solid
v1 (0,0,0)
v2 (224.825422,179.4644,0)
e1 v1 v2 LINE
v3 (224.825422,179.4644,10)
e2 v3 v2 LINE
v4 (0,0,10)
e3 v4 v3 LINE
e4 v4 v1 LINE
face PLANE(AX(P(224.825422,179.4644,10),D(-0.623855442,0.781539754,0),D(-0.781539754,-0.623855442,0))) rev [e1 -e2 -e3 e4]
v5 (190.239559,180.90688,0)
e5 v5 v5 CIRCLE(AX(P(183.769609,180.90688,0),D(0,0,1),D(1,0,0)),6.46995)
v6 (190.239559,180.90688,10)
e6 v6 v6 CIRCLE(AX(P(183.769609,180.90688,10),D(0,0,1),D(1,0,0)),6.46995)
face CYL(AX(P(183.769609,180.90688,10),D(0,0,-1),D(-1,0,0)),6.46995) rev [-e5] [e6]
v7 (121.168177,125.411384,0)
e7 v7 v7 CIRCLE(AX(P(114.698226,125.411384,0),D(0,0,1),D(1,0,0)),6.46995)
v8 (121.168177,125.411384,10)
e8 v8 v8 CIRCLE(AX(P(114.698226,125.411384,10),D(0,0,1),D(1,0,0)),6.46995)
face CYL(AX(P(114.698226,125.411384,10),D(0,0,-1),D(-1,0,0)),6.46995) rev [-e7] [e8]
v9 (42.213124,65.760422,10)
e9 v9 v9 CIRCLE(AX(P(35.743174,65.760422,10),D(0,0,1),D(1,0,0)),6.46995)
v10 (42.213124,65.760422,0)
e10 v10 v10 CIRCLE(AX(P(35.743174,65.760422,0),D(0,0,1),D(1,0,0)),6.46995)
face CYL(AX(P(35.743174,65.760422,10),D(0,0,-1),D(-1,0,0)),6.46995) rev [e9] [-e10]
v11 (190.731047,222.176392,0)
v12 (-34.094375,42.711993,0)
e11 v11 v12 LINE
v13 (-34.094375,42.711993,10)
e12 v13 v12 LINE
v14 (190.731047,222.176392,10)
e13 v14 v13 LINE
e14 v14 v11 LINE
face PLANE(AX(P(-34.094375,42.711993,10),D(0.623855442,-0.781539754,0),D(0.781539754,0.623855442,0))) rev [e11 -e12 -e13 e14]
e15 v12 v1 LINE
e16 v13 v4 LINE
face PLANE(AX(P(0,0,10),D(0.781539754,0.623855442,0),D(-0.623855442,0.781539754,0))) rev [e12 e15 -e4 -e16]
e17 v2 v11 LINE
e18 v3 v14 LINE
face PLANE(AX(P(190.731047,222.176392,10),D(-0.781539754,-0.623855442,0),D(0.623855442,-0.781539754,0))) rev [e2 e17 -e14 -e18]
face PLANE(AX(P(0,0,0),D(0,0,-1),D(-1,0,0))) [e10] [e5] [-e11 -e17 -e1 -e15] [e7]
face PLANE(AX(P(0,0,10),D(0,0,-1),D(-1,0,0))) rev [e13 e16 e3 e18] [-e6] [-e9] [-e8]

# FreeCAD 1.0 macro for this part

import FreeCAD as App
import Part
import Sketcher

doc = App.newDocument("Part")
body = doc.addObject("PartDesign::Body", "Body")

# Sketch on XY plane
sketch1 = body.newObject("Sketcher::SketchObject", "Sketch")
sketch1.AttachmentSupport = (doc.getObject("XY_Plane"), [""])
sketch1.MapMode = "FlatFace"
sketch1.addGeometry(Part.LineSegment(App.Vector(-34, 43, 0), App.Vector(0, 0, 0)), False)
sketch1.addGeometry(Part.LineSegment(App.Vector(0, 0, 0), App.Vector(225, 179, 0)), False)
sketch1.addGeometry(Part.LineSegment(App.Vector(225, 179, 0), App.Vector(191, 222, 0)), False)
sketch1.addGeometry(Part.LineSegment(App.Vector(191, 222, 0), App.Vector(-34, 43, 0)), False)
sketch1.addGeometry(Part.Circle(App.Vector(36, 66, 0), App.Vector(0, 0, 1), 6), False)
sketch1.addGeometry(Part.Circle(App.Vector(115, 125, 0), App.Vector(0, 0, 1), 6), False)
sketch1.addGeometry(Part.Circle(App.Vector(184, 181, 0), App.Vector(0, 0, 1), 6), False)
sketch1.addConstraint(Sketcher.Constraint("Coincident", 0, 2, 1, 1))
sketch1.addConstraint(Sketcher.Constraint("Coincident", 1, 2, 2, 1))
sketch1.addConstraint(Sketcher.Constraint("Coincident", 2, 2, 3, 1))
sketch1.addConstraint(Sketcher.Constraint("Coincident", 3, 2, 0, 1))
sketch1.addConstraint(Sketcher.Constraint("Coincident", 0, 2, -1, 1))
sketch1.addConstraint(Sketcher.Constraint("Equal", 4, 5))
sketch1.addConstraint(Sketcher.Constraint("Equal", 5, 6))
sketch1.addConstraint(Sketcher.Constraint("Perpendicular", 0, 1))
sketch1.addConstraint(Sketcher.Constraint("Perpendicular", 1, 2))
sketch1.addConstraint(Sketcher.Constraint("Perpendicular", 2, 3))
sketch1.addConstraint(Sketcher.Constraint("Diameter", 4, 12.939901))
sketch1.addConstraint(Sketcher.Constraint("DistanceY", -1, 1, 1, 2, 179.4644))
sketch1.addConstraint(Sketcher.Constraint("DistanceX", 3, 2, 5, 3, 148.792601))
sketch1.addConstraint(Sketcher.Constraint("Distance", 0, 54.651081))
sketch1.addConstraint(Sketcher.Constraint("DistanceY", -1, 1, 4, 3, 65.760422))
sketch1.addConstraint(Sketcher.Constraint("DistanceX", -1, 1, 6, 3, 183.769609))
sketch1.addConstraint(Sketcher.Constraint("DistanceY", -1, 1, 6, 3, 180.90688))
sketch1.addConstraint(Sketcher.Constraint("DistanceX", -1, 1, 1, 2, 224.825422))
sketch1.addConstraint(Sketcher.Constraint("DistanceY", 5, 3, 2, 2, 96.765008))
sketch1.addConstraint(Sketcher.Constraint("DistanceX", 3, 2, 4, 3, 69.837548))
pad1 = body.newObject("PartDesign::Pad", "Pad")
pad1.Profile = sketch1
pad1.Length = 10

doc.recompute()
